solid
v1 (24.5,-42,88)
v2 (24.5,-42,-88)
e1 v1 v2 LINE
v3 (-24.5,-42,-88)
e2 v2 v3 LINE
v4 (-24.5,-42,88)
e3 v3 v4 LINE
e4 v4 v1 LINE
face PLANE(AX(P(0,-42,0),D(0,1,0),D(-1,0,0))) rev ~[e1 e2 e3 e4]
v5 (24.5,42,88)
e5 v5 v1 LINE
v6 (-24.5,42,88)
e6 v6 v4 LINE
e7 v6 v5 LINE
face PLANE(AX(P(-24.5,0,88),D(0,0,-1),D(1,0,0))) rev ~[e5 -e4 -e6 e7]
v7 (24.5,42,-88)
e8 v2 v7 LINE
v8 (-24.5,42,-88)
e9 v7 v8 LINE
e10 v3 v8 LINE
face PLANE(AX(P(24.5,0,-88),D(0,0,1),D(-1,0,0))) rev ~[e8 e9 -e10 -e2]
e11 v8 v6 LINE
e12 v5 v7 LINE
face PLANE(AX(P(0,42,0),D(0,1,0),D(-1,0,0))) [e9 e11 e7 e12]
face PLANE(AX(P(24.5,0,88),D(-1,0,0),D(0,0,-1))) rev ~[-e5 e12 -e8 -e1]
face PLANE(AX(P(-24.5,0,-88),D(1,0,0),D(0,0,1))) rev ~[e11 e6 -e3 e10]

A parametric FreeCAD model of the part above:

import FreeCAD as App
import Part
import Sketcher


def add_polygon(sketch, points):
    """Adds a closed chain of lines whose ends are joined by coincident constraints."""
    first, n = sketch.GeometryCount, len(points)
    for a, b in zip(points, points[1:] + points[:1]):
        sketch.addGeometry(Part.LineSegment(App.Vector(*a, 0), App.Vector(*b, 0)), False)
    for i in range(n):
        sketch.addConstraint(Sketcher.Constraint("Coincident", first + i, 2, first + (i + 1) % n, 1))

doc = App.newDocument("Part")
body = doc.addObject("PartDesign::Body", "Body")

sketch1 = doc.addObject("Sketcher::SketchObject", "Sketch")
body.addObject(sketch1)
sketch1.AttachmentSupport = (doc.XZ_Plane, [""])
sketch1.MapMode = "FlatFace"
add_polygon(sketch1, [(24, 88), (24, -88), (-24, -88), (-24, 88)])
sketch1.addConstraint([
    Sketcher.Constraint("Vertical", 0),
    Sketcher.Constraint("Horizontal", 1),
    Sketcher.Constraint("Vertical", 2),
    Sketcher.Constraint("Horizontal", 3),
    Sketcher.Constraint("Symmetric", 0, 2, 2, 2, -1, 1),
    Sketcher.Constraint("DistanceX", 1, 2, 1, 1, 49.0),
    Sketcher.Constraint("DistanceY", 0, 2, 0, 1, 176.0),
])
pad1 = doc.addObject("PartDesign::Pad", "Pad")
body.addObject(pad1)
pad1.Profile = sketch1
pad1.Length = 84
pad1.Midplane = True

doc.recompute()
